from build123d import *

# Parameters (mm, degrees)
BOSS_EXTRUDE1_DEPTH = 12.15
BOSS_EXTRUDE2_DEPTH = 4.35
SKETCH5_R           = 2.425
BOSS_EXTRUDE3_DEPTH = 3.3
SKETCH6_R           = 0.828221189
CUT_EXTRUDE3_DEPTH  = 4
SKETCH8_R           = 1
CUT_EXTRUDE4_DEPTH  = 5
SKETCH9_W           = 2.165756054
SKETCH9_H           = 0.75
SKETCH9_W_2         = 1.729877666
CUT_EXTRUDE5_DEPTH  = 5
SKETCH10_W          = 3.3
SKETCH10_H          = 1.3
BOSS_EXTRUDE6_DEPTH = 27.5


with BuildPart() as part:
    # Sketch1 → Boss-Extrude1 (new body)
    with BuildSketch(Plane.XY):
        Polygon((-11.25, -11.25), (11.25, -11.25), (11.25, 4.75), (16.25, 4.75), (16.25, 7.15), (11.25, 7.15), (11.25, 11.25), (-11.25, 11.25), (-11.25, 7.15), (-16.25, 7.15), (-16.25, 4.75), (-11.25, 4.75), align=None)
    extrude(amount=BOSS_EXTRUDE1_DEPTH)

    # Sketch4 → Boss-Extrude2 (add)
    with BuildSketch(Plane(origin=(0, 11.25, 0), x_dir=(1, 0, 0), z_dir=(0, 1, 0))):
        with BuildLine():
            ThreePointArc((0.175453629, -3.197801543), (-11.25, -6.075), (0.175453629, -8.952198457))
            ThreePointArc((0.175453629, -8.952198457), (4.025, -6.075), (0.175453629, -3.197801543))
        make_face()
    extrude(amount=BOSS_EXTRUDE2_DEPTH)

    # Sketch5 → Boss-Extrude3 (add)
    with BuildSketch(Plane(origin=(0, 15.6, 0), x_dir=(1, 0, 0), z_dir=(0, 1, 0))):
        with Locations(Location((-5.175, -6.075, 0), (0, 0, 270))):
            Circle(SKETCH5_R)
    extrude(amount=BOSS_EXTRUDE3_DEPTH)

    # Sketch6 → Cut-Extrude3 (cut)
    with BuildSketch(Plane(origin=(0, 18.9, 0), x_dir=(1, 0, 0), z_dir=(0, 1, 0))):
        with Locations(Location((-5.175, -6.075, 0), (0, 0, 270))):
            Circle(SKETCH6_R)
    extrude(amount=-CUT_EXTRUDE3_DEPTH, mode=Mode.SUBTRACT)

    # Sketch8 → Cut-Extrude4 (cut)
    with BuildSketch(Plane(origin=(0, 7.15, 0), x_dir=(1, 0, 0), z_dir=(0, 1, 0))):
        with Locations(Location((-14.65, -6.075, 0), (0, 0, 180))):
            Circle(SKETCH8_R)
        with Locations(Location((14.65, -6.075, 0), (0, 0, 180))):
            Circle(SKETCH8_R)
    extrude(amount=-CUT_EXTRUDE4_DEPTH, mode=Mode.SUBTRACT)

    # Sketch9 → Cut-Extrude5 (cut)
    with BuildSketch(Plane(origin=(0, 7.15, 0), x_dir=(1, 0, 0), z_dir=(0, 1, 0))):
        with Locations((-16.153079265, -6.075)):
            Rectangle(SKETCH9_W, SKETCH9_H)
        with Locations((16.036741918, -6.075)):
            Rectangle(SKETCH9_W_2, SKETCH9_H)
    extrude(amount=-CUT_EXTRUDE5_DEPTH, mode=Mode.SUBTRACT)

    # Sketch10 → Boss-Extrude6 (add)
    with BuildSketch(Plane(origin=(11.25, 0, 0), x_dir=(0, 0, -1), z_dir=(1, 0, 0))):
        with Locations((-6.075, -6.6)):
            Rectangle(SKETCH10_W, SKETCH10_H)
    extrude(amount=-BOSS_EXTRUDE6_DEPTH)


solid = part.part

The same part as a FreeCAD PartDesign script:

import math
import FreeCAD as App
import Part
import Sketcher

V = App.Vector


def add_polygon(sketch, points):
    """Adds a closed chain of lines whose ends are joined by coincident constraints."""
    first, n = sketch.GeometryCount, len(points)
    for a, b in zip(points, points[1:] + points[:1]):
        sketch.addGeometry(Part.LineSegment(App.Vector(*a, 0), App.Vector(*b, 0)), False)
    for i in range(n):
        sketch.addConstraint(Sketcher.Constraint("Coincident", first + i, 2, first + (i + 1) % n, 1))

doc = App.newDocument("Part")
body = doc.addObject("PartDesign::Body", "Body")

# Sketch on XY plane
sketch1 = doc.addObject("Sketcher::SketchObject", "Sketch")
body.addObject(sketch1)
sketch1.AttachmentSupport = (doc.XY_Plane, [""])
sketch1.MapMode = "FlatFace"
add_polygon(sketch1, [(-11.2, -11.2), (11.2, -11.2), (11.2, 4.8), (16.2, 4.8), (16.2, 7.2), (11.2, 7.2), (11.2, 11.2), (-11.2, 11.2), (-11.2, 7.2), (-16.2, 7.2), (-16.2, 4.8), (-11.2, 4.8)])  # lines 0-11
sketch1.addConstraint([
    Sketcher.Constraint("Horizontal", 0),
    Sketcher.Constraint("Vertical", 1),
    Sketcher.Constraint("Horizontal", 2),
    Sketcher.Constraint("Vertical", 3),
    Sketcher.Constraint("Horizontal", 4),
    Sketcher.Constraint("Vertical", 5),
    Sketcher.Constraint("Horizontal", 6),
    Sketcher.Constraint("Vertical", 7),
    Sketcher.Constraint("Horizontal", 8),
    Sketcher.Constraint("Vertical", 9),
    Sketcher.Constraint("Horizontal", 10),
    Sketcher.Constraint("Vertical", 11),
    Sketcher.Constraint("Symmetric", 0, 2, 6, 2, -1, 1),
    Sketcher.Constraint("Symmetric", 4, 2, 7, 2, -2),
    Sketcher.Constraint("Symmetric", 2, 2, 9, 2, -2),
    Sketcher.Constraint("Vertical", 7, 2, 10, 2),
    Sketcher.Constraint("DistanceX", 2, 1, 2, 2, 5.0),
    Sketcher.Constraint("DistanceY", 1, 1, 1, 2, 16.0),
    Sketcher.Constraint("DistanceX", 0, 1, 0, 2, 22.5),
    Sketcher.Constraint("DistanceY", 3, 1, 3, 2, 2.4),
    Sketcher.Constraint("DistanceY", 5, 1, 5, 2, 4.1),
])
pad1 = doc.addObject("PartDesign::Pad", "Pad")
body.addObject(pad1)
pad1.Profile = sketch1
pad1.Length = 12.15

# Sketch on XZ plane
sketch2 = doc.addObject("Sketcher::SketchObject", "Sketch001")
body.addObject(sketch2)
sketch2.AttachmentSupport = (doc.XZ_Plane, [""])
sketch2.MapMode = "FlatFace"
sketch2.AttachmentOffset = App.Placement(V(0, 0, -11.25), App.Rotation())
sketch2.addGeometry([
    Part.ArcOfCircle(Part.Circle(V(-5.2, 6.1, 0), V(0, 0, 1), 6.1), math.radians(28), math.radians(332)),
    Part.ArcOfCircle(Part.Circle(V(1, 6.1, 0), V(0, 0, 1), 3), math.radians(-106), math.radians(106)),
], False)
sketch2.addConstraint([
    Sketcher.Constraint("Coincident", 0, 1, 1, 2),
    Sketcher.Constraint("Coincident", 1, 1, 0, 2),
    Sketcher.Constraint("Horizontal", 0, 3, 1, 3),
    Sketcher.Constraint("Radius", 1, 3.0),
    Sketcher.Constraint("Radius", 0, 6.075),
    Sketcher.Constraint("DistanceX", 0, 3, 1, 3, 6.2),
    Sketcher.Constraint("DistanceX", 0, 3, -1, 1, 5.175),
    Sketcher.Constraint("DistanceY", -1, 1, 0, 3, 6.075),
])
pad2 = doc.addObject("PartDesign::Pad", "Pad001")
body.addObject(pad2)
pad2.Profile = sketch2
pad2.Length = 4.35
pad2.Reversed = True

# Sketch on XZ plane
sketch3 = doc.addObject("Sketcher::SketchObject", "Sketch002")
body.addObject(sketch3)
sketch3.AttachmentSupport = (doc.XZ_Plane, [""])
sketch3.MapMode = "FlatFace"
sketch3.AttachmentOffset = App.Placement(V(0, 0, -15.6), App.Rotation())
sketch3.addGeometry(Part.Circle(V(-5.2, 6.1, 0), V(0, 0, 1), 2.4), False)
sketch3.addConstraint([
    Sketcher.Constraint("Diameter", 0, 4.85),
    Sketcher.Constraint("DistanceX", 0, 3, -1, 1, 5.175),
    Sketcher.Constraint("DistanceY", -1, 1, 0, 3, 6.075),
])
pad3 = doc.addObject("PartDesign::Pad", "Pad002")
body.addObject(pad3)
pad3.Profile = sketch3
pad3.Length = 3.3
pad3.Reversed = True

# Sketch on XZ plane
sketch4 = doc.addObject("Sketcher::SketchObject", "Sketch003")
body.addObject(sketch4)
sketch4.AttachmentSupport = (doc.XZ_Plane, [""])
sketch4.MapMode = "FlatFace"
sketch4.AttachmentOffset = App.Placement(V(0, 0, -18.9), App.Rotation())
sketch4.addGeometry(Part.Circle(V(-5.2, 6.1, 0), V(0, 0, 1), 0.8), False)
sketch4.addConstraint([
    Sketcher.Constraint("Diameter", 0, 1.656442),
    Sketcher.Constraint("DistanceX", 0, 3, -1, 1, 5.175),
    Sketcher.Constraint("DistanceY", -1, 1, 0, 3, 6.075),
])
pocket1 = doc.addObject("PartDesign::Pocket", "Pocket")
body.addObject(pocket1)
pocket1.Profile = sketch4
pocket1.Length = 4
pocket1.Reversed = True

# Sketch on XZ plane
sketch5 = doc.addObject("Sketcher::SketchObject", "Sketch004")
body.addObject(sketch5)
sketch5.AttachmentSupport = (doc.XZ_Plane, [""])
sketch5.MapMode = "FlatFace"
sketch5.AttachmentOffset = App.Placement(V(0, 0, -7.15), App.Rotation())
sketch5.addGeometry([
    Part.Circle(V(-14.7, 6.1, 0), V(0, 0, 1), 1),
    Part.Circle(V(14.7, 6.1, 0), V(0, 0, 1), 1),
], False)
sketch5.addConstraint([
    Sketcher.Constraint("Equal", 0, 1),
    Sketcher.Constraint("Symmetric", 0, 3, 1, 3, -2),
    Sketcher.Constraint("Diameter", 0, 2.0),
    Sketcher.Constraint("DistanceX", 0, 3, 1, 3, 29.3),
    Sketcher.Constraint("DistanceY", -1, 1, 0, 3, 6.075),
])
pocket2 = doc.addObject("PartDesign::Pocket", "Pocket001")
body.addObject(pocket2)
pocket2.Profile = sketch5
pocket2.Length = 5
pocket2.Reversed = True

# Sketch on XZ plane
sketch6 = doc.addObject("Sketcher::SketchObject", "Sketch005")
body.addObject(sketch6)
sketch6.AttachmentSupport = (doc.XZ_Plane, [""])
sketch6.MapMode = "FlatFace"
sketch6.AttachmentOffset = App.Placement(V(0, 0, -7.15), App.Rotation())
add_polygon(sketch6, [(-17.2, 5.7), (-17.2, 6.5), (-15.1, 6.5), (-15.1, 5.7)])  # lines 0-3
add_polygon(sketch6, [(15.2, 5.7), (15.2, 6.5), (16.9, 6.5), (16.9, 5.7)])  # lines 4-7
sketch6.addConstraint([
    Sketcher.Constraint("Vertical", 0),
    Sketcher.Constraint("Horizontal", 1),
    Sketcher.Constraint("Vertical", 2),
    Sketcher.Constraint("Horizontal", 3),
    Sketcher.Constraint("Vertical", 4),
    Sketcher.Constraint("Horizontal", 5),
    Sketcher.Constraint("Vertical", 6),
    Sketcher.Constraint("Horizontal", 7),
    Sketcher.Constraint("Horizontal", 1, 2, 4, 2),
    Sketcher.Constraint("Horizontal", 3, 2, 6, 2),
    Sketcher.Constraint("DistanceY", 0, 1, 0, 2, 0.75),
    Sketcher.Constraint("DistanceY", -1, 1, 2, 2, 5.7),
    Sketcher.Constraint("DistanceX", 1, 2, -1, 1, 15.070201),
    Sketcher.Constraint("DistanceX", 1, 1, 1, 2, 2.165756),
    Sketcher.Constraint("DistanceX", 5, 1, 5, 2, 1.729878),
    Sketcher.Constraint("DistanceX", -1, 1, 5, 2, 16.901681),
])
pocket3 = doc.addObject("PartDesign::Pocket", "Pocket002")
body.addObject(pocket3)
pocket3.Profile = sketch6
pocket3.Length = 5
pocket3.Reversed = True

# Sketch on YZ plane
sketch7 = doc.addObject("Sketcher::SketchObject", "Sketch006")
body.addObject(sketch7)
sketch7.AttachmentSupport = (doc.YZ_Plane, [""])
sketch7.MapMode = "FlatFace"
sketch7.AttachmentOffset = App.Placement(V(0, 0, 11.25), App.Rotation())
add_polygon(sketch7, [(-6, 7.7), (-7.2, 7.7), (-7.2, 4.4), (-6, 4.4)])  # lines 0-3
sketch7.addConstraint([
    Sketcher.Constraint("Horizontal", 0),
    Sketcher.Constraint("Vertical", 1),
    Sketcher.Constraint("Horizontal", 2),
    Sketcher.Constraint("Vertical", 3),
    Sketcher.Constraint("DistanceX", 0, 2, 0, 1, 1.3),
    Sketcher.Constraint("DistanceY", 1, 2, 1, 1, 3.3),
    Sketcher.Constraint("DistanceX", 0, 2, -1, 1, 7.25),
    Sketcher.Constraint("DistanceY", -1, 1, 0, 2, 7.725),
])
pad4 = doc.addObject("PartDesign::Pad", "Pad003")
body.addObject(pad4)
pad4.Profile = sketch7
pad4.Length = 27.5
pad4.Reversed = True

doc.recompute()
